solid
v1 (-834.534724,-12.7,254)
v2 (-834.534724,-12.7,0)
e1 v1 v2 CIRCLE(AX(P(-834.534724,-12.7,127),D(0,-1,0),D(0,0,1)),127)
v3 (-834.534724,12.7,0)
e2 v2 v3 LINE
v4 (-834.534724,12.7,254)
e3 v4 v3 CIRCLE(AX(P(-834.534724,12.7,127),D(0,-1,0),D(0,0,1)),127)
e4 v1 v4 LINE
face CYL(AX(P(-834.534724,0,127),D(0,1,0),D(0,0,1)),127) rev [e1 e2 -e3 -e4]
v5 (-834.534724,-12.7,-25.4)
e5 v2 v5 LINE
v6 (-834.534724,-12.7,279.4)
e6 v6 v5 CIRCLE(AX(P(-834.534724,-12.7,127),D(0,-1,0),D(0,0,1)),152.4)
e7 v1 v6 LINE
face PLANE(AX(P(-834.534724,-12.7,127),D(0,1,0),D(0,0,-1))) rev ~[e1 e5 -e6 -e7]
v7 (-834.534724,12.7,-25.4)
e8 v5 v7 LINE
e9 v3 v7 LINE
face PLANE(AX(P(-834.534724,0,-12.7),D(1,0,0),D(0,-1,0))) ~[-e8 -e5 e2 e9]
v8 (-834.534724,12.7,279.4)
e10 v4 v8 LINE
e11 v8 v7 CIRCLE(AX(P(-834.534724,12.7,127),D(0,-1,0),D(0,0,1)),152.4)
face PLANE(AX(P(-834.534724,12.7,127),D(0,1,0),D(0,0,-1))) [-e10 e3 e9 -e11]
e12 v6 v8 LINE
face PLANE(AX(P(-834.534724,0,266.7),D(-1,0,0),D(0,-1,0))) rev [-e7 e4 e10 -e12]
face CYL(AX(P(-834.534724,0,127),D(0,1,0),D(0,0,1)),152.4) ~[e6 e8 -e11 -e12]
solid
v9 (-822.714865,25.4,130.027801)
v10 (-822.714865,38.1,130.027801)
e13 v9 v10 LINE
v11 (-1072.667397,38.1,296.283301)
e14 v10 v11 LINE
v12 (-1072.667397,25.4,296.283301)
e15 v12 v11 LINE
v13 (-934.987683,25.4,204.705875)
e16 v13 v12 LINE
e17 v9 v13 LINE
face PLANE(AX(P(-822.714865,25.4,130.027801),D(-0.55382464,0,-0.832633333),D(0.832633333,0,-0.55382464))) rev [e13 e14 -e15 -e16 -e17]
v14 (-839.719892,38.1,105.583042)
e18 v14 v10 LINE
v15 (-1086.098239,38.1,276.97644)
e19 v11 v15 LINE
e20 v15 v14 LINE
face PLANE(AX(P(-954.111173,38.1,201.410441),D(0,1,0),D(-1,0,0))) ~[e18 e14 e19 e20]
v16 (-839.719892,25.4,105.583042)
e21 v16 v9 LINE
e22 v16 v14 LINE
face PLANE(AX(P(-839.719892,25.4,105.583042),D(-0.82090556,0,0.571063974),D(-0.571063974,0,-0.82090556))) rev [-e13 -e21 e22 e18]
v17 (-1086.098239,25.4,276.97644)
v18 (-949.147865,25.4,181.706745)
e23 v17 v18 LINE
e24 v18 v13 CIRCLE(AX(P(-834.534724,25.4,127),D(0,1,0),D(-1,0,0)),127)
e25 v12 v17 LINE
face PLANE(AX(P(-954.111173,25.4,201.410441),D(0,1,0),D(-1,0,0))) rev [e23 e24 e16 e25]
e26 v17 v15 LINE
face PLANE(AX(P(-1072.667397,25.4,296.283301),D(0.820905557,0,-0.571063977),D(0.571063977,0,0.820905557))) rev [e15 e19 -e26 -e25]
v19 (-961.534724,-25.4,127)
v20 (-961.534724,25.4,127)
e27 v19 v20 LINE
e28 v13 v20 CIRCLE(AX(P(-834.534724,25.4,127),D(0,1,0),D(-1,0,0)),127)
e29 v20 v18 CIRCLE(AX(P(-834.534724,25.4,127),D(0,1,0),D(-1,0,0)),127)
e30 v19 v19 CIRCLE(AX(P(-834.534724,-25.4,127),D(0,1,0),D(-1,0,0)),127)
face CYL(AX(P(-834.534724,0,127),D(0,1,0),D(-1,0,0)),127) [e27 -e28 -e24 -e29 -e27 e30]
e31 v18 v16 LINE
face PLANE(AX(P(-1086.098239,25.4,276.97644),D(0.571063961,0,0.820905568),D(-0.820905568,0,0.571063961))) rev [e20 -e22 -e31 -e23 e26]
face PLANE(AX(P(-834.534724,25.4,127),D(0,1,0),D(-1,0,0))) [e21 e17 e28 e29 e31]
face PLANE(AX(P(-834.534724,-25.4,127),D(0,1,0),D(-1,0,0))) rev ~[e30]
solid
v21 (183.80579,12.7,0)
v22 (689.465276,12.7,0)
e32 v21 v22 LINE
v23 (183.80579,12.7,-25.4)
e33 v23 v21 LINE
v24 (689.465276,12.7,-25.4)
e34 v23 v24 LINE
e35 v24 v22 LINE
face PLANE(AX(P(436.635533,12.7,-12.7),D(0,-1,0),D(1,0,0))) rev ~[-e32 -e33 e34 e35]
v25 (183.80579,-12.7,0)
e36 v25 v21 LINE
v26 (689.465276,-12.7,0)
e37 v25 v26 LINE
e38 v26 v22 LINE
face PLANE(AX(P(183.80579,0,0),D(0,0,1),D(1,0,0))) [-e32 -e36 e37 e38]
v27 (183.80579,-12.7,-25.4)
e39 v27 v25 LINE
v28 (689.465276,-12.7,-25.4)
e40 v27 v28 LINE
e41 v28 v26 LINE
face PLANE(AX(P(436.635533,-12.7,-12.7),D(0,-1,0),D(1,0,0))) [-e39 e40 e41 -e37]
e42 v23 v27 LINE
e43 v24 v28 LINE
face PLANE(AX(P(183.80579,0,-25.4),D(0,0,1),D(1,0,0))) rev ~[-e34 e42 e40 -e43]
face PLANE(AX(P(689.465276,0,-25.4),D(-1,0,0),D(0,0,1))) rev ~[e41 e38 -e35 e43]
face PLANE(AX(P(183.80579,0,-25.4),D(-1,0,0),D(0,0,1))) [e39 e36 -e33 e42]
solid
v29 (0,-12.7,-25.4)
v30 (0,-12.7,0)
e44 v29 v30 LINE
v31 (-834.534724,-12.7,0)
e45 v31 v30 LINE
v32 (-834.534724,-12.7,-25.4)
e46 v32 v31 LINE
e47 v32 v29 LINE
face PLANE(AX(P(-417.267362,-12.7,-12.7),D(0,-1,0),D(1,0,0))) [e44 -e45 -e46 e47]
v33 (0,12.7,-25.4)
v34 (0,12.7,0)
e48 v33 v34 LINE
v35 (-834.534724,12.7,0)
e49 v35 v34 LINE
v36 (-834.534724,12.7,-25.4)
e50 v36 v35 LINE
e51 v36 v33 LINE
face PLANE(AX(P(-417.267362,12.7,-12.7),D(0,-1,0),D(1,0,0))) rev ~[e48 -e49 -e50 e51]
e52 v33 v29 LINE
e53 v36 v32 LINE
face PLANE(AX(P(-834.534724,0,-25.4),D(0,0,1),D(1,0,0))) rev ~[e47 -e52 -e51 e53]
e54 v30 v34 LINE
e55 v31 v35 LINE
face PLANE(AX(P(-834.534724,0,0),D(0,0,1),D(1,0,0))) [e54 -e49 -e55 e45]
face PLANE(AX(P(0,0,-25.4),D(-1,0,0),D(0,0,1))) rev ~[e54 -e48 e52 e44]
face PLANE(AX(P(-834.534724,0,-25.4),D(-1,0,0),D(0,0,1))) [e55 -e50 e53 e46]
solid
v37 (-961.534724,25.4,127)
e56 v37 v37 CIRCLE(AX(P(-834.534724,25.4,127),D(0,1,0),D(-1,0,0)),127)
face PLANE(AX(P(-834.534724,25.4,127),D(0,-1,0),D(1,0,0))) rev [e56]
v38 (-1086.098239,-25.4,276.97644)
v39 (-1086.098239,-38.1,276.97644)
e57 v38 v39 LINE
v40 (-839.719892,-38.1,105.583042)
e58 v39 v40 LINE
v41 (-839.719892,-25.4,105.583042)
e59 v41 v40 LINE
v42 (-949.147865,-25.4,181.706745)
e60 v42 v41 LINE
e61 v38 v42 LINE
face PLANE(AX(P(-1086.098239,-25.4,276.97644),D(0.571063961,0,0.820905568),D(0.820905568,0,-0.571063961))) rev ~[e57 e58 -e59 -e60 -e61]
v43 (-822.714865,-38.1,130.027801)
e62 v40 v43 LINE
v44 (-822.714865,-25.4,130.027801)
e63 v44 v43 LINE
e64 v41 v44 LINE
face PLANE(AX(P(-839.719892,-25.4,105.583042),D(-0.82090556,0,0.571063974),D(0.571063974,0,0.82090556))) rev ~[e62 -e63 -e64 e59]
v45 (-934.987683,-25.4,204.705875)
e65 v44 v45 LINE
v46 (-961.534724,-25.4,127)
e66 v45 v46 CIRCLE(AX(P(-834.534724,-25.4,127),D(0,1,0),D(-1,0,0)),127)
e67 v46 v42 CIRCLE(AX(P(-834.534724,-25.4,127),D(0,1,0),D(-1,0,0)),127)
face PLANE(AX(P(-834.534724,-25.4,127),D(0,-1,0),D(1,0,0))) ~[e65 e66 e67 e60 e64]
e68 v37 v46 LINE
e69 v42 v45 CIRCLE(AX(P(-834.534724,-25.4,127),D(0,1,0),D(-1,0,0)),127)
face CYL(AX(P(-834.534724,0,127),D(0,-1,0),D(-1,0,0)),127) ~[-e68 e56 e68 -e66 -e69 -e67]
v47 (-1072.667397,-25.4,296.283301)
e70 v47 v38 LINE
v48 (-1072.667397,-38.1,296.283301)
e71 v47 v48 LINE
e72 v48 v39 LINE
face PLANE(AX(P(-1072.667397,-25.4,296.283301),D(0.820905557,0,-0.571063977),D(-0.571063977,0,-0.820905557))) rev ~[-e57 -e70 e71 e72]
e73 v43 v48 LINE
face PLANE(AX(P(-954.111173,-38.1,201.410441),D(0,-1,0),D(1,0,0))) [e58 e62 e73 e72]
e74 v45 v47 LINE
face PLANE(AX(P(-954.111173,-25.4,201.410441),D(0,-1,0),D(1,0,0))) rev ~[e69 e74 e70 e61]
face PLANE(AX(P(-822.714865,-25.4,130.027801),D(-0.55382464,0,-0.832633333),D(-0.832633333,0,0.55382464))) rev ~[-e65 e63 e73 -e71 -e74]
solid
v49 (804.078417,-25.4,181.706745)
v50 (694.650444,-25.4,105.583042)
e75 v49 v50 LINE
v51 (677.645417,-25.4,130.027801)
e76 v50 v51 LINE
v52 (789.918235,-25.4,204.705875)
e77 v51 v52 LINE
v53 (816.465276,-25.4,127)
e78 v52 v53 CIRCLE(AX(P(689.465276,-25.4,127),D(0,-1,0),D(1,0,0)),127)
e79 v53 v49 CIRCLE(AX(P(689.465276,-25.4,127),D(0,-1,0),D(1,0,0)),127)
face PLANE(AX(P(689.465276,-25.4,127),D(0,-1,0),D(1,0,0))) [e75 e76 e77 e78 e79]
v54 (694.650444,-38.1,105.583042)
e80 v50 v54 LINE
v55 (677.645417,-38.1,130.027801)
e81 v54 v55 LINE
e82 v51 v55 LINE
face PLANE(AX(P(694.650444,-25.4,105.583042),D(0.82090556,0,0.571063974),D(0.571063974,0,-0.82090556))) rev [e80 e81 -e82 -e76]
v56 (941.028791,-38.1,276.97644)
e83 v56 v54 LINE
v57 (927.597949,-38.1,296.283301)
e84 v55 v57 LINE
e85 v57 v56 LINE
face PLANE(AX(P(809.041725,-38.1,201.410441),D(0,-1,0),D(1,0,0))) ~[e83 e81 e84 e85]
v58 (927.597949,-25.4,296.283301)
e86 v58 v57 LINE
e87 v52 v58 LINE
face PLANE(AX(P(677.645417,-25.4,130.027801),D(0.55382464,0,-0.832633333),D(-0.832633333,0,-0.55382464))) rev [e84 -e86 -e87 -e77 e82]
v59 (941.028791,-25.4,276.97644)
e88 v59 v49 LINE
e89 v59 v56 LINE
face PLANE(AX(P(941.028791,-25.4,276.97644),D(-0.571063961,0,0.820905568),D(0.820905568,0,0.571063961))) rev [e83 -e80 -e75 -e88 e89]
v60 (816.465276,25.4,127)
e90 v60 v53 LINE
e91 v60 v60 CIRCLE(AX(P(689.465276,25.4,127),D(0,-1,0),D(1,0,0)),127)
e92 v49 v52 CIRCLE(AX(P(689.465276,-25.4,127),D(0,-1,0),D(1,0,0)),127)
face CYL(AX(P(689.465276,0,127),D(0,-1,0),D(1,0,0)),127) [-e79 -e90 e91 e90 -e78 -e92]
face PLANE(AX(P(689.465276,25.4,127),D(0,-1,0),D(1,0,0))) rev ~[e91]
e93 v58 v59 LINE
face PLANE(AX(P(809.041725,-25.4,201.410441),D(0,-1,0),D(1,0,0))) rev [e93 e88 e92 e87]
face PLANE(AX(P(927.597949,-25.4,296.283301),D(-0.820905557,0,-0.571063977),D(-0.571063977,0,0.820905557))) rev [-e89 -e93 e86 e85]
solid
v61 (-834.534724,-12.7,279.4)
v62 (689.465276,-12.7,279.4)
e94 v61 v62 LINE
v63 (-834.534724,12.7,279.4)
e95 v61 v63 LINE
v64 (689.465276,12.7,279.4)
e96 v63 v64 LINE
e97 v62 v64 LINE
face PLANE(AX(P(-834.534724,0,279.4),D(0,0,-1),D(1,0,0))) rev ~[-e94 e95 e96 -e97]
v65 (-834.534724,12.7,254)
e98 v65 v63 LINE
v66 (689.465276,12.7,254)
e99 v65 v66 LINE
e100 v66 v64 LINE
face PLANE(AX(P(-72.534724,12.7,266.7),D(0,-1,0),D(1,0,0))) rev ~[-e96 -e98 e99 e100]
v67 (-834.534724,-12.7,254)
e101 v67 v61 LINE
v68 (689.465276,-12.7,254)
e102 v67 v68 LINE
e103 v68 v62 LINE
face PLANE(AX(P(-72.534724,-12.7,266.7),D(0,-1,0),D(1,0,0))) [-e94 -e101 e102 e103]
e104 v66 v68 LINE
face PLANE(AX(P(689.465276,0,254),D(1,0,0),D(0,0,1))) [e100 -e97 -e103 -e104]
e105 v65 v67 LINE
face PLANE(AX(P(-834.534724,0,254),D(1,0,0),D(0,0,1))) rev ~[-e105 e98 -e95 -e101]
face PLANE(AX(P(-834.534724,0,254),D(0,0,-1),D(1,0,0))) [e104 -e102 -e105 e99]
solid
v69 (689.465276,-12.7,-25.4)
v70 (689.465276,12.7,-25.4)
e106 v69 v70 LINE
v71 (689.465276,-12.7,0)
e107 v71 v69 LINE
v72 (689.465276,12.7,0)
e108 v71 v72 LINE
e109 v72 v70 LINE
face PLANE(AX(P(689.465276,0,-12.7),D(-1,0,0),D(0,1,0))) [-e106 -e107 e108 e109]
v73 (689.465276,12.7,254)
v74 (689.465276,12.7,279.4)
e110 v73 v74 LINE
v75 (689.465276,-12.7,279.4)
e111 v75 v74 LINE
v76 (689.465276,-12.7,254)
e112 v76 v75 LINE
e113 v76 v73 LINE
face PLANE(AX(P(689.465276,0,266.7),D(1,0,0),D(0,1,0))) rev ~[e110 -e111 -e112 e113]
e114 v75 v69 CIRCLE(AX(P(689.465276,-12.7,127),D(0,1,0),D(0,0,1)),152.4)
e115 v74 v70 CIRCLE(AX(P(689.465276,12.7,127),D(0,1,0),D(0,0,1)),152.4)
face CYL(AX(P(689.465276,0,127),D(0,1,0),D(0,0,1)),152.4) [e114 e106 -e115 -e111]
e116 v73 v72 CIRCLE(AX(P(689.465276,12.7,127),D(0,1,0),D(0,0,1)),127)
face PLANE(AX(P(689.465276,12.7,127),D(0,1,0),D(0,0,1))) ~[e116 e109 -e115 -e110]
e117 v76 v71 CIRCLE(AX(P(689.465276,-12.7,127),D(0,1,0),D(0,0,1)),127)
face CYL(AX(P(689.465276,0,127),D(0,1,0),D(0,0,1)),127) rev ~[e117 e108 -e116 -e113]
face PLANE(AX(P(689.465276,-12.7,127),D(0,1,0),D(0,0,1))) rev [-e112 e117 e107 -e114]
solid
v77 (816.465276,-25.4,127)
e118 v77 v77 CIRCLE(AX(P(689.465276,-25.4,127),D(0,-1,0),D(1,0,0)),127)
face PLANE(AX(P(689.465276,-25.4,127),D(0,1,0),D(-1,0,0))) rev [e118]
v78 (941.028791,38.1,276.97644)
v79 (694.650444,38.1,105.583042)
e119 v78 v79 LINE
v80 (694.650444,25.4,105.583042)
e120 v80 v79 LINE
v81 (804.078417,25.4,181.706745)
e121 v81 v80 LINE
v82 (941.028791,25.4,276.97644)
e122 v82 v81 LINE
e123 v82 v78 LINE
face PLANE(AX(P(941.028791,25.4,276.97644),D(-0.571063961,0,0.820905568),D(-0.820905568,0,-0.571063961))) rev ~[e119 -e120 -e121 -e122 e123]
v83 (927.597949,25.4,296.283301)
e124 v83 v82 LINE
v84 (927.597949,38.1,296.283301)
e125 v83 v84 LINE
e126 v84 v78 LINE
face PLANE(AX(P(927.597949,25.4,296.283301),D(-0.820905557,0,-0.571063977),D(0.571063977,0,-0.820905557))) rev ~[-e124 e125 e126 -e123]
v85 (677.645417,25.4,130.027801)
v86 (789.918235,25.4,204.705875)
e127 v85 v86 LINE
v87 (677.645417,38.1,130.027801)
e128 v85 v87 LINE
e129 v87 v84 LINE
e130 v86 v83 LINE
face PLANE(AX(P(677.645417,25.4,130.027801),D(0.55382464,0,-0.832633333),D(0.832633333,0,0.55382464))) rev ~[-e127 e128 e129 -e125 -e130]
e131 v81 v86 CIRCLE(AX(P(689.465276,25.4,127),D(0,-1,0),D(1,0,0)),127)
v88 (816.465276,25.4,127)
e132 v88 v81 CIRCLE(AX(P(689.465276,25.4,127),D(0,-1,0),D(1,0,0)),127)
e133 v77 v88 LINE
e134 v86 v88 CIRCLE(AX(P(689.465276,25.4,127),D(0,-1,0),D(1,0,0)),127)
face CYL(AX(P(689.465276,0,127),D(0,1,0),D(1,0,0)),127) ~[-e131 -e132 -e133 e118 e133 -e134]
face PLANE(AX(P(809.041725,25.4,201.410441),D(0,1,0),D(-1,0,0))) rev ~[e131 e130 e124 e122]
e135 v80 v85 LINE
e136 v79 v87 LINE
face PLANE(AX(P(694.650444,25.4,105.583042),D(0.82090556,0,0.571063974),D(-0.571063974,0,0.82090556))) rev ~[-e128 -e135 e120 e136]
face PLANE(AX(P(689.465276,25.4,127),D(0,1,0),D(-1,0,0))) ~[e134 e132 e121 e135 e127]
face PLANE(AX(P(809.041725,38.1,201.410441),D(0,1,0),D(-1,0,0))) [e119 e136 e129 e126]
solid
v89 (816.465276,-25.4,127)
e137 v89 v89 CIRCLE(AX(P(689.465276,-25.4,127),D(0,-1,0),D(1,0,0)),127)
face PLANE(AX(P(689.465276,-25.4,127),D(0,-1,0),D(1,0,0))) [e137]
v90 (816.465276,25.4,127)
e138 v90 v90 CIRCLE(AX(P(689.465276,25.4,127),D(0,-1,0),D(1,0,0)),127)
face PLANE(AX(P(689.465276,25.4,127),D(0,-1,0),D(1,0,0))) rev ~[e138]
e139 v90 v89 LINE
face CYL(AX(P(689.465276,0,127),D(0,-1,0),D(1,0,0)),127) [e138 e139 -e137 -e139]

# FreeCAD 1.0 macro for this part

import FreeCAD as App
import Part
import Sketcher

V = App.Vector
Q = App.Units.Quantity

doc = App.newDocument("Part")
body = doc.addObject("PartDesign::Body", "Body")
body.AllowCompound = True

sketch1 = body.newObject("Sketcher::SketchObject", "Sketch")
sketch1.AttachmentSupport = (doc.getObject("XZ_Plane"), [""])
sketch1.MapMode = "FlatFace"
sketch1.addGeometry([
    Part.LineSegment(V(-835, 0, 0), V(-835, -25, 0)),
    Part.LineSegment(V(-835, -25, 0), V(0, -25, 0)),
    Part.LineSegment(V(0, -25, 0), V(0, 0, 0)),
    Part.LineSegment(V(0, 0, 0), V(-835, 0, 0)),
    Part.LineSegment(V(184, 0, 0), V(184, -25, 0)),
    Part.LineSegment(V(184, -25, 0), V(689, -25, 0)),
    Part.LineSegment(V(689, -25, 0), V(689, 0, 0)),
    Part.LineSegment(V(689, 0, 0), V(184, 0, 0)),
    Part.LineSegment(V(-835, 279, 0), V(-835, 254, 0)),
    Part.LineSegment(V(-835, 254, 0), V(689, 254, 0)),
    Part.LineSegment(V(689, 254, 0), V(689, 279, 0)),
    Part.LineSegment(V(689, 279, 0), V(-835, 279, 0)),
], False)
sketch1.addConstraint([
    Sketcher.Constraint("Coincident", 0, 2, 1, 1),
    Sketcher.Constraint("Coincident", 1, 2, 2, 1),
    Sketcher.Constraint("Coincident", 2, 2, 3, 1),
    Sketcher.Constraint("Coincident", 3, 2, 0, 1),
    Sketcher.Constraint("Coincident", 4, 2, 5, 1),
    Sketcher.Constraint("Coincident", 5, 2, 6, 1),
    Sketcher.Constraint("Coincident", 6, 2, 7, 1),
    Sketcher.Constraint("Coincident", 7, 2, 4, 1),
    Sketcher.Constraint("Coincident", 8, 2, 9, 1),
    Sketcher.Constraint("Coincident", 9, 2, 10, 1),
    Sketcher.Constraint("Coincident", 10, 2, 11, 1),
    Sketcher.Constraint("Coincident", 11, 2, 8, 1),
    Sketcher.Constraint("Vertical", 0),
    Sketcher.Constraint("Horizontal", 1),
    Sketcher.Constraint("Vertical", 2),
    Sketcher.Constraint("Horizontal", 3),
    Sketcher.Constraint("Vertical", 4),
    Sketcher.Constraint("Horizontal", 5),
    Sketcher.Constraint("Vertical", 6),
    Sketcher.Constraint("Horizontal", 7),
    Sketcher.Constraint("Vertical", 8),
    Sketcher.Constraint("Horizontal", 9),
    Sketcher.Constraint("Vertical", 10),
    Sketcher.Constraint("Horizontal", 11),
    Sketcher.Constraint("Coincident", 2, 2, -1, 1),
    Sketcher.Constraint("PointOnObject", 6, 2, -1),
    Sketcher.Constraint("Horizontal", 1, 2, 4, 2),
    Sketcher.Constraint("Vertical", 3, 2, 8, 2),
    Sketcher.Constraint("Vertical", 6, 2, 9, 2),
    Sketcher.Constraint("Equal", 6, 8),
    Sketcher.Constraint("DistanceX", 9, 1, 9, 2, Q("60 in")),
    Sketcher.Constraint("DistanceY", 0, 2, 0, 1, Q("1 in")),
    Sketcher.Constraint("DistanceY", -1, 1, 8, 2, Q("10 in")),
    Sketcher.Constraint("DistanceX", 1, 1, 1, 2, Q("834.534724 mm")),
    Sketcher.Constraint("DistanceX", 5, 1, 5, 2, Q("505.659487 mm")),
])
pad1 = body.newObject("PartDesign::Pad", "Pad")
pad1.Profile = sketch1
pad1.Length = Q("1 in")
pad1.Midplane = True
body2 = doc.addObject("PartDesign::Body", "Body001")

sketch2 = body2.newObject("Sketcher::SketchObject", "Sketch001")
sketch2.AttachmentSupport = (doc.getObject("XZ_Plane001"), [""])
sketch2.MapMode = "FlatFace"
sketch2.addGeometry(Part.Circle(V(689, 127, 0), V(0, 0, 1), 127), False)
sketch2.addConstraint([
    Sketcher.Constraint("Diameter", 0, Q("10 in")),
    Sketcher.Constraint("DistanceY", -1, 1, 0, 3, Q("5 in")),
    Sketcher.Constraint("DistanceX", -1, 1, 0, 3, Q("689.465276 mm")),
])
pad2 = body2.newObject("PartDesign::Pad", "Pad001")
pad2.Profile = sketch2
pad2.Length = Q("2 in")
pad2.Midplane = True
body3 = doc.addObject("PartDesign::Body", "Body002")

sketch3 = body3.newObject("Sketcher::SketchObject", "Sketch002")
sketch3.AttachmentSupport = (doc.getObject("YZ_Plane002"), [""])
sketch3.MapMode = "FlatFace"
sketch3.AttachmentOffset = App.Placement(V(0, 0, 689.465276), App.Rotation())
sketch3.addGeometry([
    Part.LineSegment(V(-13, 279, 0), V(-13, 254, 0)),
    Part.LineSegment(V(-13, 254, 0), V(13, 254, 0)),
    Part.LineSegment(V(13, 254, 0), V(13, 279, 0)),
    Part.LineSegment(V(13, 279, 0), V(-13, 279, 0)),
], False)
sketch3.addGeometry(Part.LineSegment(V(-13, 127, 0), V(13, 127, 0)), True)
sketch3.addConstraint([
    Sketcher.Constraint("Coincident", 0, 2, 1, 1),
    Sketcher.Constraint("Coincident", 1, 2, 2, 1),
    Sketcher.Constraint("Coincident", 2, 2, 3, 1),
    Sketcher.Constraint("Coincident", 3, 2, 0, 1),
    Sketcher.Constraint("Vertical", 0),
    Sketcher.Constraint("Horizontal", 1),
    Sketcher.Constraint("Vertical", 2),
    Sketcher.Constraint("Horizontal", 3),
    Sketcher.Constraint("Horizontal", 4),
    Sketcher.Constraint("Vertical", 3, 2, 4, 1),
    Sketcher.Constraint("Vertical", 2, 2, 4, 2),
    Sketcher.Constraint("Equal", 4, 0),
    Sketcher.Constraint("DistanceX", 1, 1, 1, 2, Q("1 in")),
    Sketcher.Constraint("DistanceY", -1, 1, 0, 2, Q("10 in")),
    Sketcher.Constraint("DistanceY", -1, 1, 4, 1, Q("5 in")),
    Sketcher.Constraint("DistanceX", 0, 2, -1, 1, Q("0.5 in")),
])
revolution = body3.newObject("PartDesign::Revolution", "Revolution")
revolution.Profile = sketch3
revolution.ReferenceAxis = (sketch3, ["Axis0"])
revolution.Angle = 180
body4 = doc.addObject("PartDesign::Body", "Body003")
doc.recompute()

mirroring = doc.addObject("Part::Mirroring", "Mirroring")
mirroring.Source = body2
mirroring.Base = V(-72.534724, 0, 266.7)
mirroring.Normal = V(-1, 0, 0)
body4.BaseFeature = mirroring
doc.recompute()

sketch4 = body4.newObject("Sketcher::SketchObject", "Sketch003")
sketch4.AttachmentSupport = (doc.getObject("XZ_Plane003"), [""])
sketch4.MapMode = "FlatFace"
sketch4.AttachmentOffset = App.Placement(V(0, 0, 1 * 25.4), App.Rotation())
sketch4.addGeometry([
    Part.LineSegment(V(-840, 106, 0), V(-823, 130, 0)),
    Part.LineSegment(V(-823, 130, 0), V(-1073, 296, 0)),
    Part.LineSegment(V(-1073, 296, 0), V(-1086, 277, 0)),
    Part.LineSegment(V(-1086, 277, 0), V(-840, 106, 0)),
], False)
sketch4.addConstraint([
    Sketcher.Constraint("Coincident", 0, 2, 1, 1),
    Sketcher.Constraint("Coincident", 1, 2, 2, 1),
    Sketcher.Constraint("Coincident", 2, 2, 3, 1),
    Sketcher.Constraint("Coincident", 3, 2, 0, 1),
    Sketcher.Constraint("Parallel", 0, 2),
    Sketcher.Constraint("Perpendicular", 2, 3),
    Sketcher.Constraint("DistanceX", 1, 2, -1, 1, Q("42.2309999 in")),
    Sketcher.Constraint("DistanceY", -1, 1, 0, 2, Q("130.027801 mm")),
    Sketcher.Constraint("DistanceY", -1, 1, 1, 2, Q("296.283301 mm")),
    Sketcher.Constraint("DistanceY", 3, 2, 2, 2, Q("171.393398 mm")),
    Sketcher.Constraint("Distance", 2, Q("23.51898 mm")),
    Sketcher.Constraint("Distance", 3, Q("300.12995 mm")),
])
pad3 = body4.newObject("PartDesign::Pad", "Pad002")
pad3.Profile = sketch4
pad3.Length = Q("0.5 in")
body5 = doc.addObject("PartDesign::Body", "Body004")
doc.recompute()

mirroring2 = doc.addObject("Part::Mirroring", "Mirroring001")
mirroring2.Source = body3
mirroring2.Base = V(-72.534724, 0, 266.7)
mirroring2.Normal = V(-1, 0, 0)
body5.BaseFeature = mirroring2
doc.recompute()
body6 = doc.addObject("PartDesign::Body", "Body005")
doc.recompute()

mirroring3 = doc.addObject("Part::Mirroring", "Mirroring002")
mirroring3.Source = body4
mirroring3.Base = V(0, 0, 0)
mirroring3.Normal = V(0, -1, 0)
body6.BaseFeature = mirroring3
doc.recompute()
body7 = doc.addObject("PartDesign::Body", "Body006")
doc.recompute()

mirroring4 = doc.addObject("Part::Mirroring", "Mirroring003")
mirroring4.Source = body4
mirroring4.Base = V(-72.534724, 0, 266.7)
mirroring4.Normal = V(-1, 0, 0)
body7.BaseFeature = mirroring4
doc.recompute()
body8 = doc.addObject("PartDesign::Body", "Body007")
doc.recompute()

mirroring5 = doc.addObject("Part::Mirroring", "Mirroring004")
mirroring5.Source = body6
mirroring5.Base = V(-72.534724, 0, 266.7)
mirroring5.Normal = V(-1, 0, 0)
body8.BaseFeature = mirroring5
doc.recompute()
mirroring.Visibility = False
mirroring2.Visibility = False
mirroring3.Visibility = False
mirroring4.Visibility = False
mirroring5.Visibility = False

doc.recompute()
